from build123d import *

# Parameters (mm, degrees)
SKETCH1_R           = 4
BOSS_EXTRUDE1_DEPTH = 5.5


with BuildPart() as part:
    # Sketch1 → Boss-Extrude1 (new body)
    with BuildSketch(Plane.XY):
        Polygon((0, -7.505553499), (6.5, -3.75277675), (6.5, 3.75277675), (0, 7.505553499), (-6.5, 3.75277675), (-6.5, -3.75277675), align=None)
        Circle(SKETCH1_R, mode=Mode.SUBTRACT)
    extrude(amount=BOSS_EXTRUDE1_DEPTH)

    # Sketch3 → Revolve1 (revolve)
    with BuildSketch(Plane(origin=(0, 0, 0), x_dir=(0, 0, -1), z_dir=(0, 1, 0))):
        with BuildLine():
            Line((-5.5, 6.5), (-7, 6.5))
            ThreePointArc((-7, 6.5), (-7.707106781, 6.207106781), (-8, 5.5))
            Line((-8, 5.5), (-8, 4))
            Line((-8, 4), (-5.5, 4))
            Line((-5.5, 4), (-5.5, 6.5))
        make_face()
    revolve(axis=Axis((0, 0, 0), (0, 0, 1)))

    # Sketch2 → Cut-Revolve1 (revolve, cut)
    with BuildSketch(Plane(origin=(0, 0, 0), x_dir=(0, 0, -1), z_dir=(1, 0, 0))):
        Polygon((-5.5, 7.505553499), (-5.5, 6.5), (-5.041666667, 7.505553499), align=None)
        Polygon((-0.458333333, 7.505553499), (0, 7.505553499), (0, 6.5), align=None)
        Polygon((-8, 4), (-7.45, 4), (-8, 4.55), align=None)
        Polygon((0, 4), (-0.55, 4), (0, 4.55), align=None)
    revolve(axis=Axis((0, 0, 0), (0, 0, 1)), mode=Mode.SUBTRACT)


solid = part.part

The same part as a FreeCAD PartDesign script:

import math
import FreeCAD as App
import Part
import Sketcher
Q = App.Units.Quantity

doc = App.newDocument("Part")
body = doc.addObject("PartDesign::Body", "Body")

sketch1 = body.newObject("Sketcher::SketchObject", "Sketch")
sketch1.AttachmentSupport = (doc.getObject("XY_Plane"), [""])
sketch1.MapMode = "FlatFace"
sketch1.addGeometry(Part.LineSegment(App.Vector(0, -7.5, 0), App.Vector(6.5, -3.8, 0)), False)
sketch1.addGeometry(Part.LineSegment(App.Vector(6.5, -3.8, 0), App.Vector(6.5, 3.8, 0)), False)
sketch1.addGeometry(Part.LineSegment(App.Vector(6.5, 3.8, 0), App.Vector(0, 7.5, 0)), False)
sketch1.addGeometry(Part.LineSegment(App.Vector(0, 7.5, 0), App.Vector(-6.5, 3.8, 0)), False)
sketch1.addGeometry(Part.LineSegment(App.Vector(-6.5, 3.8, 0), App.Vector(-6.5, -3.8, 0)), False)
sketch1.addGeometry(Part.LineSegment(App.Vector(-6.5, -3.8, 0), App.Vector(0, -7.5, 0)), False)
sketch1.addGeometry(Part.Circle(App.Vector(0, 0, 0), App.Vector(0, 0, 1), 4), False)
sketch1.addConstraint(Sketcher.Constraint("Coincident", 0, 2, 1, 1))
sketch1.addConstraint(Sketcher.Constraint("Coincident", 1, 2, 2, 1))
sketch1.addConstraint(Sketcher.Constraint("Coincident", 2, 2, 3, 1))
sketch1.addConstraint(Sketcher.Constraint("Coincident", 3, 2, 4, 1))
sketch1.addConstraint(Sketcher.Constraint("Coincident", 4, 2, 5, 1))
sketch1.addConstraint(Sketcher.Constraint("Coincident", 5, 2, 0, 1))
sketch1.addConstraint(Sketcher.Constraint("Vertical", 1))
sketch1.addConstraint(Sketcher.Constraint("Vertical", 4))
sketch1.addConstraint(Sketcher.Constraint("Coincident", 6, 3, -1, 1))
sketch1.addConstraint(Sketcher.Constraint("Symmetric", 0, 2, 3, 2, -1, 1))
sketch1.addConstraint(Sketcher.Constraint("Symmetric", 2, 2, 5, 2, -1, 1))
sketch1.addConstraint(Sketcher.Constraint("PointOnObject", 2, 2, -2))
sketch1.addConstraint(Sketcher.Constraint("Parallel", 2, 5))
sketch1.addConstraint(Sketcher.Constraint("Horizontal", 1, 2, 3, 2))
sketch1.addConstraint(Sketcher.Constraint("Diameter", 6, Q("8 mm")))
sketch1.addConstraint(Sketcher.Constraint("Angle", 0, Q("30 deg")))
sketch1.addConstraint(Sketcher.Constraint("DistanceX", 3, 2, 1, 2, Q("13 mm")))
sketch1.addConstraint(Sketcher.Constraint("DistanceY", 1, 1, 1, 2, Q("7.505554 mm")))
pad1 = body.newObject("PartDesign::Pad", "Pad")
pad1.Profile = sketch1
pad1.Length = 5.5

sketch2 = body.newObject("Sketcher::SketchObject", "Sketch001")
sketch2.AttachmentSupport = (doc.getObject("XZ_Plane"), [""])
sketch2.MapMode = "FlatFace"
sketch2.addGeometry(Part.LineSegment(App.Vector(-6.5, 5.5, 0), App.Vector(-6.5, 7, 0)), False)
sketch2.addGeometry(Part.ArcOfCircle(Part.Circle(App.Vector(-5.5, 7, 0), App.Vector(0, 0, 1), 1), math.radians(90), math.radians(180)), False)
sketch2.addGeometry(Part.LineSegment(App.Vector(-5.5, 8, 0), App.Vector(-4, 8, 0)), False)
sketch2.addGeometry(Part.LineSegment(App.Vector(-4, 8, 0), App.Vector(-4, 5.5, 0)), False)
sketch2.addGeometry(Part.LineSegment(App.Vector(-4, 5.5, 0), App.Vector(-6.5, 5.5, 0)), False)
sketch2.addConstraint(Sketcher.Constraint("Tangent", 0, 2, 1, 2))
sketch2.addConstraint(Sketcher.Constraint("Tangent", 1, 1, 2, 1))
sketch2.addConstraint(Sketcher.Constraint("Coincident", 2, 2, 3, 1))
sketch2.addConstraint(Sketcher.Constraint("Coincident", 3, 2, 4, 1))
sketch2.addConstraint(Sketcher.Constraint("Coincident", 4, 2, 0, 1))
sketch2.addConstraint(Sketcher.Constraint("Vertical", 0))
sketch2.addConstraint(Sketcher.Constraint("Horizontal", 2))
sketch2.addConstraint(Sketcher.Constraint("Vertical", 3))
sketch2.addConstraint(Sketcher.Constraint("Horizontal", 4))
sketch2.addConstraint(Sketcher.Constraint("Equal", 2, 0))
sketch2.addConstraint(Sketcher.Constraint("Radius", 1, Q("1 mm")))
sketch2.addConstraint(Sketcher.Constraint("DistanceX", 2, 1, 2, 2, Q("1.5 mm")))
sketch2.addConstraint(Sketcher.Constraint("DistanceY", -1, 1, 1, 3, Q("7 mm")))
sketch2.addConstraint(Sketcher.Constraint("DistanceX", 2, 2, -1, 1, Q("4 mm")))
revolution = body.newObject("PartDesign::Revolution", "Revolution")
revolution.Profile = sketch2
revolution.ReferenceAxis = (sketch2, ["V_Axis"])
revolution.Angle = 360

sketch3 = body.newObject("Sketcher::SketchObject", "Sketch002")
sketch3.AttachmentSupport = (doc.getObject("YZ_Plane"), [""])
sketch3.MapMode = "FlatFace"
sketch3.addGeometry(Part.LineSegment(App.Vector(7.51, 5.5, 0), App.Vector(6.5, 5.5, 0)), False)
sketch3.addGeometry(Part.LineSegment(App.Vector(6.5, 5.5, 0), App.Vector(7.51, 5.04, 0)), False)
sketch3.addGeometry(Part.LineSegment(App.Vector(7.51, 5.04, 0), App.Vector(7.51, 5.5, 0)), False)
sketch3.addGeometry(Part.LineSegment(App.Vector(7.51, 0, 0), App.Vector(7.51, 0.46, 0)), False)
sketch3.addGeometry(Part.LineSegment(App.Vector(7.51, 0.46, 0), App.Vector(6.5, 0, 0)), False)
sketch3.addGeometry(Part.LineSegment(App.Vector(6.5, 0, 0), App.Vector(7.51, 0, 0)), False)
sketch3.addGeometry(Part.LineSegment(App.Vector(4, 8, 0), App.Vector(4, 7.45, 0)), False)
sketch3.addGeometry(Part.LineSegment(App.Vector(4, 7.45, 0), App.Vector(4.55, 8, 0)), False)
sketch3.addGeometry(Part.LineSegment(App.Vector(4.55, 8, 0), App.Vector(4, 8, 0)), False)
sketch3.addGeometry(Part.LineSegment(App.Vector(4, 0.55, 0), App.Vector(4, 0, 0)), False)
sketch3.addGeometry(Part.LineSegment(App.Vector(4, 0, 0), App.Vector(4.55, 0, 0)), False)
sketch3.addGeometry(Part.LineSegment(App.Vector(4.55, 0, 0), App.Vector(4, 0.55, 0)), False)
sketch3.addConstraint(Sketcher.Constraint("Coincident", 0, 2, 1, 1))
sketch3.addConstraint(Sketcher.Constraint("Coincident", 1, 2, 2, 1))
sketch3.addConstraint(Sketcher.Constraint("Coincident", 2, 2, 0, 1))
sketch3.addConstraint(Sketcher.Constraint("Coincident", 3, 2, 4, 1))
sketch3.addConstraint(Sketcher.Constraint("Coincident", 4, 2, 5, 1))
sketch3.addConstraint(Sketcher.Constraint("Coincident", 5, 2, 3, 1))
sketch3.addConstraint(Sketcher.Constraint("Coincident", 6, 2, 7, 1))
sketch3.addConstraint(Sketcher.Constraint("Coincident", 7, 2, 8, 1))
sketch3.addConstraint(Sketcher.Constraint("Coincident", 8, 2, 6, 1))
sketch3.addConstraint(Sketcher.Constraint("Coincident", 9, 2, 10, 1))
sketch3.addConstraint(Sketcher.Constraint("Coincident", 10, 2, 11, 1))
sketch3.addConstraint(Sketcher.Constraint("Coincident", 11, 2, 9, 1))
sketch3.addConstraint(Sketcher.Constraint("Horizontal", 0))
sketch3.addConstraint(Sketcher.Constraint("Vertical", 2))
sketch3.addConstraint(Sketcher.Constraint("Vertical", 3))
sketch3.addConstraint(Sketcher.Constraint("Horizontal", 5))
sketch3.addConstraint(Sketcher.Constraint("Vertical", 6))
sketch3.addConstraint(Sketcher.Constraint("Horizontal", 8))
sketch3.addConstraint(Sketcher.Constraint("Vertical", 9))
sketch3.addConstraint(Sketcher.Constraint("Horizontal", 10))
sketch3.addConstraint(Sketcher.Constraint("PointOnObject", 4, 2, -1))
sketch3.addConstraint(Sketcher.Constraint("PointOnObject", 9, 2, -1))
sketch3.addConstraint(Sketcher.Constraint("Perpendicular", 7, 11))
sketch3.addConstraint(Sketcher.Constraint("Vertical", 2, 2, 3, 2))
sketch3.addConstraint(Sketcher.Constraint("Vertical", 0, 2, 4, 2))
sketch3.addConstraint(Sketcher.Constraint("Vertical", 8, 2, 9, 2))
sketch3.addConstraint(Sketcher.Constraint("Vertical", 7, 2, 10, 2))
sketch3.addConstraint(Sketcher.Constraint("Equal", 2, 3))
sketch3.addConstraint(Sketcher.Constraint("Equal", 10, 6))
sketch3.addConstraint(Sketcher.Constraint("DistanceX", -1, 1, 6, 2, Q("4 mm")))
sketch3.addConstraint(Sketcher.Constraint("DistanceY", -1, 1, 7, 2, Q("8 mm")))
sketch3.addConstraint(Sketcher.Constraint("DistanceX", 8, 2, 8, 1, Q("0.55 mm")))
sketch3.addConstraint(Sketcher.Constraint("DistanceX", -1, 1, 0, 2, Q("6.5 mm")))
sketch3.addConstraint(Sketcher.Constraint("DistanceY", -1, 1, 0, 2, Q("5.5 mm")))
sketch3.addConstraint(Sketcher.Constraint("DistanceX", 0, 2, 0, 1, Q("1.005553 mm")))
sketch3.addConstraint(Sketcher.Constraint("DistanceY", 2, 1, 2, 2, Q("0.458333 mm")))
groove = body.newObject("PartDesign::Groove", "Groove")
groove.Profile = sketch3
groove.ReferenceAxis = (sketch3, ["V_Axis"])
groove.Angle = 360

doc.recompute()
